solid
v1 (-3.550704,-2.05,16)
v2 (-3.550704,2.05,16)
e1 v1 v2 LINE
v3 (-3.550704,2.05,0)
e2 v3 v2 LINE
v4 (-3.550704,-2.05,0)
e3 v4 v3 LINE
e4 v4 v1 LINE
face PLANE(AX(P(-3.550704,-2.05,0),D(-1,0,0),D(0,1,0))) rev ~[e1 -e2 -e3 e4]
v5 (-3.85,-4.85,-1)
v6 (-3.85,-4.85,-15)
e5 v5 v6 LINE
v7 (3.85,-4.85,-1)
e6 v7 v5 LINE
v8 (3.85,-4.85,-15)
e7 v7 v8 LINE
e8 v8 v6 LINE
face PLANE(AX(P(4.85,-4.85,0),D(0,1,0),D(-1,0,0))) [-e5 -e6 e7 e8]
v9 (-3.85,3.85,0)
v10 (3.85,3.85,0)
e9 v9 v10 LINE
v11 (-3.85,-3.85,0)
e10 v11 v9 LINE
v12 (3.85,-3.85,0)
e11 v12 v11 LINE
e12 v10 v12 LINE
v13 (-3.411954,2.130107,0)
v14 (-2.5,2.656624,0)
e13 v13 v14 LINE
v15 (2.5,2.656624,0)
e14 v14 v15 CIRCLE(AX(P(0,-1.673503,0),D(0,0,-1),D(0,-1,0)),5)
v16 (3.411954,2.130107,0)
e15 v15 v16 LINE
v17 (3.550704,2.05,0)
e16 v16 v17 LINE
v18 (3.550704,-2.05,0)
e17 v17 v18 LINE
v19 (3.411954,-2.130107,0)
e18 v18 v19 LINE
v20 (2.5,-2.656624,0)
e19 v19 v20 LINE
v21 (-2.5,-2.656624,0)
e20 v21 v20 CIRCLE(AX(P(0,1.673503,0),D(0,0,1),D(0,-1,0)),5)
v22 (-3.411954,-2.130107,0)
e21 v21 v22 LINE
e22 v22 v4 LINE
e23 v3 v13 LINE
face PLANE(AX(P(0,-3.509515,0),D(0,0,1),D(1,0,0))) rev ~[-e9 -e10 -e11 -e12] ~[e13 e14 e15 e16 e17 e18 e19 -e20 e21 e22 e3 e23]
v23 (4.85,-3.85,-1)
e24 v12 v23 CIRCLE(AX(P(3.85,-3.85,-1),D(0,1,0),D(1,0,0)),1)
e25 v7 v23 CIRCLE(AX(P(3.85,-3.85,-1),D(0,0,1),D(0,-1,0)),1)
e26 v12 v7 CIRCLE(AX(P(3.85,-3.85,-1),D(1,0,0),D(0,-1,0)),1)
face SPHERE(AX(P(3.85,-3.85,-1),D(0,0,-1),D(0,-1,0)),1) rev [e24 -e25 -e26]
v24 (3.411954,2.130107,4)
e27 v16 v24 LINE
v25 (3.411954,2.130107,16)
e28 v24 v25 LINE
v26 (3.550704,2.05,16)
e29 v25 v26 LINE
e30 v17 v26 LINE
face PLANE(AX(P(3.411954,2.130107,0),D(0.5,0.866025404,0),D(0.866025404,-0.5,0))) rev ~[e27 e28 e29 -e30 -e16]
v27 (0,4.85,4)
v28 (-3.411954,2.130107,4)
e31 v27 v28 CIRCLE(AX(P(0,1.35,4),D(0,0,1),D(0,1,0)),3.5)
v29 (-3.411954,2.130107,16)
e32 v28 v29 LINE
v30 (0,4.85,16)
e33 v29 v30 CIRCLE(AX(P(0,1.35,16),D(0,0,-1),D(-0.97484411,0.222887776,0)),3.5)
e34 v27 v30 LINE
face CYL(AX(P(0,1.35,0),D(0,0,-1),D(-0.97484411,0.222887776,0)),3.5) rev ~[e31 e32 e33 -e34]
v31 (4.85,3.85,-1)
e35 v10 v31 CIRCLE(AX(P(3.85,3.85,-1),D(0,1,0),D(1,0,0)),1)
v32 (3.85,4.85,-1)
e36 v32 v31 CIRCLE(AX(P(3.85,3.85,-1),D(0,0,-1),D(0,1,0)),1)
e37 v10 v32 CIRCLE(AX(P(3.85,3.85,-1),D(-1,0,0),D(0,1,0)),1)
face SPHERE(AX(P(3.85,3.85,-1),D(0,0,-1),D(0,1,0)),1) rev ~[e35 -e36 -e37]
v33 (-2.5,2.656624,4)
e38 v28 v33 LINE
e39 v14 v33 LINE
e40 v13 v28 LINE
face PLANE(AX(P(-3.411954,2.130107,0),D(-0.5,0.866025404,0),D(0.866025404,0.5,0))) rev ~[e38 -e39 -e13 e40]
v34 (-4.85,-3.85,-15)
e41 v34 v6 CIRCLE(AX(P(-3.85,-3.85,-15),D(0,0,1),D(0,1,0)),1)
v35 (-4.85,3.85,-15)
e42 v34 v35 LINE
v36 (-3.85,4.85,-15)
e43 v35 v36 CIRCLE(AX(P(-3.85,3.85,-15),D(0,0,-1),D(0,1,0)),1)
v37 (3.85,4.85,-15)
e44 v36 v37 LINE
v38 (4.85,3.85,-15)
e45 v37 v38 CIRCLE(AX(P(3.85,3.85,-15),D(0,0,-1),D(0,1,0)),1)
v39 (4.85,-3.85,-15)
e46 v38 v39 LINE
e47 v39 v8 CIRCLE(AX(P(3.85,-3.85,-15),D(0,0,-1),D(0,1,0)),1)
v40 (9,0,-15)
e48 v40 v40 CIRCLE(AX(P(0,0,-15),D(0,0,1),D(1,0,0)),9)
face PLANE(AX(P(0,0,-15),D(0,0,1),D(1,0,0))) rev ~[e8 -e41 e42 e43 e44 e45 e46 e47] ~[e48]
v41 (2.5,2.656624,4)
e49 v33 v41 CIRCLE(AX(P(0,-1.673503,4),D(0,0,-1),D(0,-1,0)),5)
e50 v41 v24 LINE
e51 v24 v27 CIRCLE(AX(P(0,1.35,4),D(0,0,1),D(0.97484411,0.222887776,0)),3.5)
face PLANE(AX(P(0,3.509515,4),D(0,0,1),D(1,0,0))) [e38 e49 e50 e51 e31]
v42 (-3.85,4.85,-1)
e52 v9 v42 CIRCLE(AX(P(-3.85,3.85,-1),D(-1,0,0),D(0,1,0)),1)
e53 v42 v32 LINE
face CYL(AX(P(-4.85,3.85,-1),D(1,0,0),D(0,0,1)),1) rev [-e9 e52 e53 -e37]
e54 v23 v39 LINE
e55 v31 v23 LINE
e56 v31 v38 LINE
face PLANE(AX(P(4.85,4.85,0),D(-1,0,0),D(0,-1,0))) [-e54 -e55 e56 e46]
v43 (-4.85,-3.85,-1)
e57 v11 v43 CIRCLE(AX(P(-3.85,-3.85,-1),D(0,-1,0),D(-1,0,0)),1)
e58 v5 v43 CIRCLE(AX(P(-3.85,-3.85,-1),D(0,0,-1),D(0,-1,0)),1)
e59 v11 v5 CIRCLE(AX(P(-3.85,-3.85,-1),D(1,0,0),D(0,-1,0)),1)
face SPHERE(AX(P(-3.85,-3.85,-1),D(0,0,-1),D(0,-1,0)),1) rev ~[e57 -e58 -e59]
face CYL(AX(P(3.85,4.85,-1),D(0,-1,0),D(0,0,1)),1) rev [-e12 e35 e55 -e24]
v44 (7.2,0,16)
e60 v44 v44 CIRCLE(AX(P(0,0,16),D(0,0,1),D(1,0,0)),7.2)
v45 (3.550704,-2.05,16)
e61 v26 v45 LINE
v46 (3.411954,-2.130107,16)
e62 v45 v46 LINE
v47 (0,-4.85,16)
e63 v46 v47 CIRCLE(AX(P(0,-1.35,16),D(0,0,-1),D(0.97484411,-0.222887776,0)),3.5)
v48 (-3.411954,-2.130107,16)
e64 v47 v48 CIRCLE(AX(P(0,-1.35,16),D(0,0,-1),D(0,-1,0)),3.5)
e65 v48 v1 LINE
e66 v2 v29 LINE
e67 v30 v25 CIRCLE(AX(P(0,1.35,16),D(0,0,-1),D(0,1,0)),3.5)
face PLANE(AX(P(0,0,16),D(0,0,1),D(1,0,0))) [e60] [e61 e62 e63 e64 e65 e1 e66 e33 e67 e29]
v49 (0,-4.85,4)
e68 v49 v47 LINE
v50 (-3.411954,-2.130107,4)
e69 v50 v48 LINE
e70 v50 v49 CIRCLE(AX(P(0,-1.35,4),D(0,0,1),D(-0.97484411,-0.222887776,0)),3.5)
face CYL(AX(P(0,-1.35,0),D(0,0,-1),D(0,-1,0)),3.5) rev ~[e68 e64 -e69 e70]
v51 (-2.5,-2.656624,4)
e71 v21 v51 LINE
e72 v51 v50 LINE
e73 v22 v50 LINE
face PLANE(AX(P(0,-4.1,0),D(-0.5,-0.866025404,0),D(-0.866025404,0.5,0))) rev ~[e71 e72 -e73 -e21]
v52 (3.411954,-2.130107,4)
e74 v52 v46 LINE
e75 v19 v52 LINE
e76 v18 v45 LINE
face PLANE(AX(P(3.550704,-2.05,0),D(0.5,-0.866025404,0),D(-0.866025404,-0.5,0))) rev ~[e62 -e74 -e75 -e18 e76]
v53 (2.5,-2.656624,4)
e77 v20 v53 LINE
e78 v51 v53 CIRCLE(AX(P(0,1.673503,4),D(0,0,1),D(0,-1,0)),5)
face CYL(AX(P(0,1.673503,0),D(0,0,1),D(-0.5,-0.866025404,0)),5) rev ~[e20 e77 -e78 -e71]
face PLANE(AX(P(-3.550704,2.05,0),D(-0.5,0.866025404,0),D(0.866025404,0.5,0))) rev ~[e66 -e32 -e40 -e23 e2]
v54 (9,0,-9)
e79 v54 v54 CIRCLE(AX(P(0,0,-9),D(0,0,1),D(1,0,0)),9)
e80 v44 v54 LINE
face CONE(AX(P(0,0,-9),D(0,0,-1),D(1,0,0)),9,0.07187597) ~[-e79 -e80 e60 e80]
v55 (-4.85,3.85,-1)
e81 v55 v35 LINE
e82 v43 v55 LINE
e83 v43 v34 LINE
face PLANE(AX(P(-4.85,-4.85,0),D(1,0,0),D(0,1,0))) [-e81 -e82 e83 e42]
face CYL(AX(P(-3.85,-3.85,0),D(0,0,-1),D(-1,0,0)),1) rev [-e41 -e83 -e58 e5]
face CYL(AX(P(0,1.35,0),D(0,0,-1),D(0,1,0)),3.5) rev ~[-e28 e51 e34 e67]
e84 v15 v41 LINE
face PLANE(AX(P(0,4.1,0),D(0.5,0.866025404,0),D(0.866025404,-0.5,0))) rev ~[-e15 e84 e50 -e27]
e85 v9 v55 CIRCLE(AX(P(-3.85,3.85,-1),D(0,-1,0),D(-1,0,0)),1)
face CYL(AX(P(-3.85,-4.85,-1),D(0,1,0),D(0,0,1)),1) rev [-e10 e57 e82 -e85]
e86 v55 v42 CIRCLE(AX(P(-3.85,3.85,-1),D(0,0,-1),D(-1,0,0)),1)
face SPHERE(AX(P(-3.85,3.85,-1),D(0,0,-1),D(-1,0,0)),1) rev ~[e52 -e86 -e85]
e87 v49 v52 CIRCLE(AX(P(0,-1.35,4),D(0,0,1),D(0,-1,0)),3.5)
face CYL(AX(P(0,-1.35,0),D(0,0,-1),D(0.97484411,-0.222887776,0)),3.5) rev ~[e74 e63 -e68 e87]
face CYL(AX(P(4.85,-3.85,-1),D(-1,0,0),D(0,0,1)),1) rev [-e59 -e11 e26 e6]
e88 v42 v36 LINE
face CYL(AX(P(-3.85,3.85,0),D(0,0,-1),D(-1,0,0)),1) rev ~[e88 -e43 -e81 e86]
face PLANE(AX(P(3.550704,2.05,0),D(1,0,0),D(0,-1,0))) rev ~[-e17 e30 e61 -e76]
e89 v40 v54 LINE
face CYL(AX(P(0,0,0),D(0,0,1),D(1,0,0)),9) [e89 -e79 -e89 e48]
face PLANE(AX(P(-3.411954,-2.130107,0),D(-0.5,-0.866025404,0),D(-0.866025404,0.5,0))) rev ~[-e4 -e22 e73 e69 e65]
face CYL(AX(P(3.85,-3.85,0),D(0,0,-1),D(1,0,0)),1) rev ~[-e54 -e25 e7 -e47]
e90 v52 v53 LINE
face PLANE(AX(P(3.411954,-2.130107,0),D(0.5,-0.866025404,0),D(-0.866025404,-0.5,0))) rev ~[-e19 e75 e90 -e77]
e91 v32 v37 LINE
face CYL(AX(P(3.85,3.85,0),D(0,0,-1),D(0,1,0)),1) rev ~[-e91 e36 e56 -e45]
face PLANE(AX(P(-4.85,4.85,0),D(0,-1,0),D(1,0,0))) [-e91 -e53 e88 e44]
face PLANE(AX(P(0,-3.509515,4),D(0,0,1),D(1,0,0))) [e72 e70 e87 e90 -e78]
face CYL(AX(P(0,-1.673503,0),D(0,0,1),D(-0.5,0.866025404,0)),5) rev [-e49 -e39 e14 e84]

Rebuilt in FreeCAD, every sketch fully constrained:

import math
import FreeCAD as App
import Part
import Sketcher
Q = App.Units.Quantity


def edges_at(feature, points):
    """Names of the edges that pass closest to the given points."""
    edges = feature.Shape.Edges
    near = lambda p: min(range(len(edges)), key=lambda i: edges[i].distToShape(Part.Vertex(*p))[0])
    return sorted({f"Edge{near(p) + 1}" for p in points})

doc = App.newDocument("Part")
body = doc.addObject("PartDesign::Body", "Body")

# Sketch on XY plane
sketch1 = doc.addObject("Sketcher::SketchObject", "Sketch")
body.addObject(sketch1)
sketch1.AttachmentSupport = (doc.XY_Plane, [""])
sketch1.MapMode = "FlatFace"
sketch1.addGeometry([
    Part.Circle(App.Vector(0, 0, 0), App.Vector(0, 0, 1), 9),  # 0
    Part.ArcOfCircle(Part.Circle(App.Vector(0, 1.35, 0), App.Vector(0, 0, 1), 3.5), math.radians(13), math.radians(90)),  # 1
    Part.LineSegment(App.Vector(3.41, 2.13, 0), App.Vector(3.55, 2.05, 0)),  # 2
    Part.LineSegment(App.Vector(3.55, 2.05, 0), App.Vector(3.55, -2.05, 0)),  # 3
    Part.LineSegment(App.Vector(3.55, -2.05, 0), App.Vector(3.41, -2.13, 0)),  # 4
    Part.ArcOfCircle(Part.Circle(App.Vector(0, -1.35, 0), App.Vector(0, 0, 1), 3.5), math.radians(-90), math.radians(-13)),  # 5
    Part.ArcOfCircle(Part.Circle(App.Vector(0, -1.35, 0), App.Vector(0, 0, 1), 3.5), math.radians(-167), math.radians(-90)),  # 6
    Part.LineSegment(App.Vector(-3.41, -2.13, 0), App.Vector(-3.55, -2.05, 0)),  # 7
    Part.LineSegment(App.Vector(-3.55, -2.05, 0), App.Vector(-3.55, 2.05, 0)),  # 8
    Part.LineSegment(App.Vector(-3.55, 2.05, 0), App.Vector(-3.41, 2.13, 0)),  # 9
    Part.ArcOfCircle(Part.Circle(App.Vector(0, 1.35, 0), App.Vector(0, 0, 1), 3.5), math.radians(90), math.radians(167)),  # 10
], False)
sketch1.addConstraint([
    Sketcher.Constraint("Coincident", 1, 1, 2, 1),
    Sketcher.Constraint("Coincident", 2, 2, 3, 1),
    Sketcher.Constraint("Coincident", 3, 2, 4, 1),
    Sketcher.Constraint("Coincident", 4, 2, 5, 2),
    Sketcher.Constraint("Tangent", 5, 1, 6, 2),
    Sketcher.Constraint("Coincident", 6, 1, 7, 1),
    Sketcher.Constraint("Coincident", 7, 2, 8, 1),
    Sketcher.Constraint("Coincident", 8, 2, 9, 1),
    Sketcher.Constraint("Coincident", 9, 2, 10, 2),
    Sketcher.Constraint("Tangent", 10, 1, 1, 2),
    Sketcher.Constraint("Vertical", 3),
    Sketcher.Constraint("Vertical", 8),
    Sketcher.Constraint("Coincident", 0, 3, -1, 1),
    Sketcher.Constraint("Equal", 1, 5),
    Sketcher.Constraint("Equal", 5, 6),
    Sketcher.Constraint("Equal", 6, 10),
    Sketcher.Constraint("Symmetric", 1, 3, 5, 3, -1, 1),
    Sketcher.Constraint("Symmetric", 2, 2, 7, 2, -1, 1),
    Sketcher.Constraint("Symmetric", 4, 2, 6, 1, -2),
    Sketcher.Constraint("PointOnObject", 5, 1, -2),
    Sketcher.Constraint("PointOnObject", 10, 1, -2),
    Sketcher.Constraint("Parallel", 2, 7),
    Sketcher.Constraint("Parallel", 4, 9),
    Sketcher.Constraint("Horizontal", 3, 2, 7, 2),
    Sketcher.Constraint("Horizontal", 2, 2, 8, 2),
    Sketcher.Constraint("Diameter", 0, Q("18 mm")),
    Sketcher.Constraint("Radius", 1, Q("3.5 mm")),
    Sketcher.Constraint("Angle", 2, Q("-30 deg")),
    Sketcher.Constraint("DistanceY", 3, 2, 3, 1, Q("4.1 mm")),
    Sketcher.Constraint("DistanceY", 5, 3, 1, 3, Q("2.7 mm")),
    Sketcher.Constraint("DistanceX", 1, 1, 2, 2, Q("0.13875 mm")),
])
pad1 = doc.addObject("PartDesign::Pad", "Pad")
body.addObject(pad1)
pad1.Profile = sketch1
pad1.Length = 16

# Sketch on XY plane
sketch2 = doc.addObject("Sketcher::SketchObject", "Sketch001")
body.addObject(sketch2)
sketch2.AttachmentSupport = (doc.XY_Plane, [""])
sketch2.MapMode = "FlatFace"
sketch2.addGeometry([
    Part.ArcOfCircle(Part.Circle(App.Vector(0, -1.4, 0), App.Vector(0, 0, 1), 3.5), math.radians(-90), math.radians(-13)),  # 0
    Part.LineSegment(App.Vector(3.4, -2.1, 0), App.Vector(0, -4.1, 0)),  # 1
    Part.LineSegment(App.Vector(0, -4.1, 0), App.Vector(-3.4, -2.1, 0)),  # 2
    Part.ArcOfCircle(Part.Circle(App.Vector(0, -1.4, 0), App.Vector(0, 0, 1), 3.5), math.radians(-167), math.radians(-90)),  # 3
    Part.LineSegment(App.Vector(0, 4.1, 0), App.Vector(3.4, 2.1, 0)),  # 4
    Part.ArcOfCircle(Part.Circle(App.Vector(0, 1.4, 0), App.Vector(0, 0, 1), 3.5), math.radians(13), math.radians(90)),  # 5
    Part.ArcOfCircle(Part.Circle(App.Vector(0, 1.4, 0), App.Vector(0, 0, 1), 3.5), math.radians(90), math.radians(167)),  # 6
    Part.LineSegment(App.Vector(-3.4, 2.1, 0), App.Vector(0, 4.1, 0)),  # 7
], False)
sketch2.addConstraint([
    Sketcher.Constraint("Coincident", 0, 2, 1, 1),
    Sketcher.Constraint("Coincident", 1, 2, 2, 1),
    Sketcher.Constraint("Coincident", 2, 2, 3, 1),
    Sketcher.Constraint("Tangent", 3, 2, 0, 1),
    Sketcher.Constraint("Coincident", 4, 2, 5, 1),
    Sketcher.Constraint("Tangent", 5, 2, 6, 1),
    Sketcher.Constraint("Coincident", 6, 2, 7, 1),
    Sketcher.Constraint("Coincident", 7, 2, 4, 1),
    Sketcher.Constraint("Equal", 0, 3),
    Sketcher.Constraint("Equal", 3, 5),
    Sketcher.Constraint("Equal", 5, 6),
    Sketcher.Constraint("Symmetric", 0, 3, 5, 3, -1, 1),
    Sketcher.Constraint("Symmetric", 1, 2, 7, 2, -1, 1),
    Sketcher.Constraint("Symmetric", 0, 2, 2, 2, -2),
    Sketcher.Constraint("PointOnObject", 1, 2, -2),
    Sketcher.Constraint("PointOnObject", 3, 2, -2),
    Sketcher.Constraint("PointOnObject", 5, 2, -2),
    Sketcher.Constraint("Parallel", 2, 4),
    Sketcher.Constraint("Parallel", 1, 7),
    Sketcher.Constraint("Radius", 0, Q("3.5 mm")),
    Sketcher.Constraint("Angle", 1, Q("-150 deg")),
    Sketcher.Constraint("DistanceY", 1, 2, -1, 1, Q("4.1 mm")),
    Sketcher.Constraint("DistanceY", 0, 3, 5, 3, Q("2.7 mm")),
])
pad2 = doc.addObject("PartDesign::Pad", "Pad001")
body.addObject(pad2)
pad2.Profile = sketch2
pad2.Length = 4

# Sketch on XY plane
sketch3 = doc.addObject("Sketcher::SketchObject", "Sketch002")
body.addObject(sketch3)
sketch3.AttachmentSupport = (doc.XY_Plane, [""])
sketch3.MapMode = "FlatFace"
sketch3.addGeometry([
    Part.Circle(App.Vector(0, 0, 0), App.Vector(0, 0, 1), 9),  # 0
    Part.LineSegment(App.Vector(-5, -5, 0), App.Vector(-5, 5, 0)),  # 1
    Part.LineSegment(App.Vector(-5, 5, 0), App.Vector(5, 5, 0)),  # 2
    Part.LineSegment(App.Vector(5, 5, 0), App.Vector(5, -5, 0)),  # 3
    Part.LineSegment(App.Vector(5, -5, 0), App.Vector(-5, -5, 0)),  # 4
], False)
sketch3.addConstraint([
    Sketcher.Constraint("Coincident", 1, 2, 2, 1),
    Sketcher.Constraint("Coincident", 2, 2, 3, 1),
    Sketcher.Constraint("Coincident", 3, 2, 4, 1),
    Sketcher.Constraint("Coincident", 4, 2, 1, 1),
    Sketcher.Constraint("Vertical", 1),
    Sketcher.Constraint("Horizontal", 2),
    Sketcher.Constraint("Vertical", 3),
    Sketcher.Constraint("Horizontal", 4),
    Sketcher.Constraint("Coincident", 0, 3, -1, 1),
    Sketcher.Constraint("Symmetric", 1, 2, 3, 2, -1, 1),
    Sketcher.Constraint("Equal", 4, 1),
    Sketcher.Constraint("Diameter", 0, Q("18 mm")),
    Sketcher.Constraint("DistanceX", 2, 1, 2, 2, Q("9.7 mm")),
])
pad3 = doc.addObject("PartDesign::Pad", "Pad002")
body.addObject(pad3)
pad3.Profile = sketch3
pad3.Length = 15
pad3.Reversed = True
doc.recompute()

fillet = doc.addObject("PartDesign::Fillet", "Fillet")
body.addObject(fillet)
fillet.Base = (pad3, edges_at(pad3, [(0, -4.1, 2), (0, 4.1, 2)]))
fillet.Radius = 5
doc.recompute()

fillet2 = doc.addObject("PartDesign::Fillet", "Fillet001")
body.addObject(fillet2)
fillet2.Base = (fillet, edges_at(fillet, [
    (-4.85, -4.85, -7.5),
    (4.85, -4.85, -7.5),
    (4.85, 4.85, -7.5),
    (-4.85, 4.85, -7.5),
    (0, -4.85, 0),
    (-4.85, 0, 0),
    (0, 4.85, 0),
    (4.85, 0, 0),
]))
fillet2.Radius = 1
doc.recompute()

chamfer = doc.addObject("PartDesign::Chamfer", "Chamfer")
body.addObject(chamfer)
chamfer.Base = (fillet2, edges_at(fillet2, [(-9, 0, 16)]))
chamfer.ChamferType = "Two distances"
chamfer.Size = 1.8
chamfer.Size2 = 25

doc.recompute()
